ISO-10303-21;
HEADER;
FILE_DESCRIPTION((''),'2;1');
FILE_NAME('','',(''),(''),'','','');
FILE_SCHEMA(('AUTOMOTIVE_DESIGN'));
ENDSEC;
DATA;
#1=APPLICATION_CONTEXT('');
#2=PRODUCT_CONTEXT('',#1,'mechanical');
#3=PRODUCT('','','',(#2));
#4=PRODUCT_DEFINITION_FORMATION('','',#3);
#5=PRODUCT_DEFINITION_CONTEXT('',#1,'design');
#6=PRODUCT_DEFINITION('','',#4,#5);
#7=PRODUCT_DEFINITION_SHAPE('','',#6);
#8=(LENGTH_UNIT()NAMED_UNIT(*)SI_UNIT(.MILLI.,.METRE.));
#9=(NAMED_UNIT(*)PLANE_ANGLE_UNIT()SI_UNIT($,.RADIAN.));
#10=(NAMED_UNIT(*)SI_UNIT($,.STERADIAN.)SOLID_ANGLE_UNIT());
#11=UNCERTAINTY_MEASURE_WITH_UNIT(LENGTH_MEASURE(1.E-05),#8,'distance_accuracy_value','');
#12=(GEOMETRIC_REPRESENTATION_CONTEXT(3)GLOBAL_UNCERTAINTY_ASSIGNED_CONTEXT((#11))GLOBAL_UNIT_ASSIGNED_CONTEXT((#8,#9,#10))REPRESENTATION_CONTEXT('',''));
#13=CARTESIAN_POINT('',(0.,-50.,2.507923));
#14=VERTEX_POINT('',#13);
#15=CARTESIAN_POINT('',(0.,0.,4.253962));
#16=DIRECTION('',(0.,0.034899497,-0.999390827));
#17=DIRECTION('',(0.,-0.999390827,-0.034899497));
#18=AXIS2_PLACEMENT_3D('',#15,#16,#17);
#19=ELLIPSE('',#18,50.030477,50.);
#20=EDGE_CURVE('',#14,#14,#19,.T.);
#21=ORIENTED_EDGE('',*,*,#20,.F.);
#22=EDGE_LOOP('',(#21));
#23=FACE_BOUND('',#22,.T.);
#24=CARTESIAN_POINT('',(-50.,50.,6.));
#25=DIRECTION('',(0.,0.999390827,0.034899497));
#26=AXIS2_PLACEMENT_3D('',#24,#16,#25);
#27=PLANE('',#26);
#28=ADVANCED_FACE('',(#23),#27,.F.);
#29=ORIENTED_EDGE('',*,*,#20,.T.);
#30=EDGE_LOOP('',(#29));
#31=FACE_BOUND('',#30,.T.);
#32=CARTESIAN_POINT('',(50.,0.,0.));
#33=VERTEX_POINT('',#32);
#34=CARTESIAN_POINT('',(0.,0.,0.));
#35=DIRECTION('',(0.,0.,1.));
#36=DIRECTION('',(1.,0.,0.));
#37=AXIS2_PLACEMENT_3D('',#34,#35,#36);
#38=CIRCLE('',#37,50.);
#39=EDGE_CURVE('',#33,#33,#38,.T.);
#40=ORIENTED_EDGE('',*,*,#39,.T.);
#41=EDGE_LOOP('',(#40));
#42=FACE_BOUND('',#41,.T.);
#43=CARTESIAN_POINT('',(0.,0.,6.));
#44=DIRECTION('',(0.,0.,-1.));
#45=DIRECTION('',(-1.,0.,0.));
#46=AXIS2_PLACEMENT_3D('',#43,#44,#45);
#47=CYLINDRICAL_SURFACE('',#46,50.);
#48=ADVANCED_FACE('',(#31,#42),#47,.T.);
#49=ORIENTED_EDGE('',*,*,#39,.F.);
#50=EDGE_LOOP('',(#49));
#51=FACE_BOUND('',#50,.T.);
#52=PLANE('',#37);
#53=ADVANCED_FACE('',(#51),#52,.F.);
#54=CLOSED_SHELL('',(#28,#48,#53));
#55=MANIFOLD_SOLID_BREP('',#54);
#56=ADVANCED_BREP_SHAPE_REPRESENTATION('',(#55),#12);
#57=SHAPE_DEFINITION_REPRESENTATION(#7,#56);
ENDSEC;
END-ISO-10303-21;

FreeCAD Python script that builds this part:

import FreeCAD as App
import Part
import Sketcher

V = App.Vector
Q = App.Units.Quantity


def add_polygon(sketch, points):
    """Adds a closed chain of lines whose ends are joined by coincident constraints."""
    first, n = sketch.GeometryCount, len(points)
    for a, b in zip(points, points[1:] + points[:1]):
        sketch.addGeometry(Part.LineSegment(App.Vector(*a, 0), App.Vector(*b, 0)), False)
    for i in range(n):
        sketch.addConstraint(Sketcher.Constraint("Coincident", first + i, 2, first + (i + 1) % n, 1))

doc = App.newDocument("Part")
params = doc.addObject("Spreadsheet::Sheet", "Params")
for row, (alias, value) in enumerate([
    ("sketch1_diameter", "100 mm"),
    ("pad1_length", "6 mm"),
    ("sketch2_width", "100 mm"),
    ("pocket1_length", "100 mm"),
], start=1):
    params.set(f"A{row}", alias)
    params.set(f"B{row}", "=" + value)
    params.setAlias(f"B{row}", alias)

body = doc.addObject("PartDesign::Body", "Body")

# Sketch on XY plane
sketch1 = body.newObject("Sketcher::SketchObject", "Sketch")
sketch1.AttachmentSupport = (doc.getObject("XY_Plane"), [""])
sketch1.MapMode = "FlatFace"
sketch1.addGeometry(Part.Circle(V(0, 0, 0), V(0, 0, 1), 50), False)
sketch1.addConstraint(Sketcher.Constraint("Coincident", 0, 3, -1, 1))
sketch1.addConstraint(Sketcher.Constraint("Diameter", 0, 100.0))
sketch1.setExpression("Constraints[1]", "Params.sketch1_diameter")
pad1 = body.newObject("PartDesign::Pad", "Pad")
pad1.Profile = sketch1
pad1.setExpression("Length", "Params.pad1_length")

# Sketch on YZ plane
sketch2 = body.newObject("Sketcher::SketchObject", "Sketch001")
sketch2.AttachmentSupport = (doc.getObject("YZ_Plane"), [""])
sketch2.MapMode = "FlatFace"
add_polygon(sketch2, [(50, 6), (-50, 6), (-50, 2.5)])  # lines 0-2
sketch2.addConstraint(Sketcher.Constraint("Horizontal", 0))
sketch2.addConstraint(Sketcher.Constraint("Vertical", 1))
sketch2.addConstraint(Sketcher.Constraint("DistanceX", 0, 2, 0, 1, 100.0))
sketch2.addConstraint(Sketcher.Constraint("Angle", 2, Q("2 deg")))
sketch2.addConstraint(Sketcher.Constraint("DistanceX", 0, 2, -1, 1, 50.0))
sketch2.addConstraint(Sketcher.Constraint("DistanceY", -1, 1, 0, 2, 6.0))
sketch2.setExpression("Constraints[5]", "Params.sketch2_width")
pocket1 = body.newObject("PartDesign::Pocket", "Pocket")
pocket1.Profile = sketch2
pocket1.setExpression("Length", "Params.pocket1_length")
pocket1.Midplane = True

doc.recompute()
